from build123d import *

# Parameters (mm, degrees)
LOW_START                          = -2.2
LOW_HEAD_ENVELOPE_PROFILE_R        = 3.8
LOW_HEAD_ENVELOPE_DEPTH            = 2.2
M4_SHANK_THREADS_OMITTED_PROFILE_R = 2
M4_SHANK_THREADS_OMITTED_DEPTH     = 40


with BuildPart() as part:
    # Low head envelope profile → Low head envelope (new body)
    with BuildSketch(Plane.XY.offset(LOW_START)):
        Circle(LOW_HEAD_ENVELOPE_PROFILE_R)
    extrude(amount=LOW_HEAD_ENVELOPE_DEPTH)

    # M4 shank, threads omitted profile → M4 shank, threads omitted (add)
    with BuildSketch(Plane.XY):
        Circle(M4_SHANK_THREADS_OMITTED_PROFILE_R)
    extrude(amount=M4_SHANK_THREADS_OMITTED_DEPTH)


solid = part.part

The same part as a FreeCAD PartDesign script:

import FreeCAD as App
import Part
import Sketcher

doc = App.newDocument("Part")
params = doc.addObject("Spreadsheet::Sheet", "Params")
for row, (alias, value) in enumerate([
    ("sketch1_diameter", "7.6 mm"),
    ("pad1_length", "2.2 mm"),
    ("sketch2_diameter", "4 mm"),
    ("pad2_length", "40 mm"),
], start=1):
    params.set(f"A{row}", alias)
    params.set(f"B{row}", "=" + value)
    params.setAlias(f"B{row}", alias)

body = doc.addObject("PartDesign::Body", "Body")

# Sketch on XY plane
sketch1 = body.newObject("Sketcher::SketchObject", "Sketch")
sketch1.AttachmentSupport = (doc.getObject("XY_Plane"), [""])
sketch1.MapMode = "FlatFace"
sketch1.AttachmentOffset = App.Placement(App.Vector(0, 0, -2.2), App.Rotation())
sketch1.addGeometry(Part.Circle(App.Vector(0, 0, 0), App.Vector(0, 0, 1), 3.8), False)
sketch1.addConstraint([
    Sketcher.Constraint("Coincident", 0, 3, -1, 1),
    Sketcher.Constraint("Diameter", 0, 7.6),
])
sketch1.setExpression("Constraints[1]", "Params.sketch1_diameter")
pad1 = body.newObject("PartDesign::Pad", "Pad")
pad1.Profile = sketch1
pad1.setExpression("Length", "Params.pad1_length")

# Sketch on XY plane
sketch2 = body.newObject("Sketcher::SketchObject", "Sketch001")
sketch2.AttachmentSupport = (doc.getObject("XY_Plane"), [""])
sketch2.MapMode = "FlatFace"
sketch2.addGeometry(Part.Circle(App.Vector(0, 0, 0), App.Vector(0, 0, 1), 2), False)
sketch2.addConstraint([
    Sketcher.Constraint("Coincident", 0, 3, -1, 1),
    Sketcher.Constraint("Diameter", 0, 4.0),
])
sketch2.setExpression("Constraints[1]", "Params.sketch2_diameter")
pad2 = body.newObject("PartDesign::Pad", "Pad001")
pad2.Profile = sketch2
pad2.setExpression("Length", "Params.pad2_length")

doc.recompute()
